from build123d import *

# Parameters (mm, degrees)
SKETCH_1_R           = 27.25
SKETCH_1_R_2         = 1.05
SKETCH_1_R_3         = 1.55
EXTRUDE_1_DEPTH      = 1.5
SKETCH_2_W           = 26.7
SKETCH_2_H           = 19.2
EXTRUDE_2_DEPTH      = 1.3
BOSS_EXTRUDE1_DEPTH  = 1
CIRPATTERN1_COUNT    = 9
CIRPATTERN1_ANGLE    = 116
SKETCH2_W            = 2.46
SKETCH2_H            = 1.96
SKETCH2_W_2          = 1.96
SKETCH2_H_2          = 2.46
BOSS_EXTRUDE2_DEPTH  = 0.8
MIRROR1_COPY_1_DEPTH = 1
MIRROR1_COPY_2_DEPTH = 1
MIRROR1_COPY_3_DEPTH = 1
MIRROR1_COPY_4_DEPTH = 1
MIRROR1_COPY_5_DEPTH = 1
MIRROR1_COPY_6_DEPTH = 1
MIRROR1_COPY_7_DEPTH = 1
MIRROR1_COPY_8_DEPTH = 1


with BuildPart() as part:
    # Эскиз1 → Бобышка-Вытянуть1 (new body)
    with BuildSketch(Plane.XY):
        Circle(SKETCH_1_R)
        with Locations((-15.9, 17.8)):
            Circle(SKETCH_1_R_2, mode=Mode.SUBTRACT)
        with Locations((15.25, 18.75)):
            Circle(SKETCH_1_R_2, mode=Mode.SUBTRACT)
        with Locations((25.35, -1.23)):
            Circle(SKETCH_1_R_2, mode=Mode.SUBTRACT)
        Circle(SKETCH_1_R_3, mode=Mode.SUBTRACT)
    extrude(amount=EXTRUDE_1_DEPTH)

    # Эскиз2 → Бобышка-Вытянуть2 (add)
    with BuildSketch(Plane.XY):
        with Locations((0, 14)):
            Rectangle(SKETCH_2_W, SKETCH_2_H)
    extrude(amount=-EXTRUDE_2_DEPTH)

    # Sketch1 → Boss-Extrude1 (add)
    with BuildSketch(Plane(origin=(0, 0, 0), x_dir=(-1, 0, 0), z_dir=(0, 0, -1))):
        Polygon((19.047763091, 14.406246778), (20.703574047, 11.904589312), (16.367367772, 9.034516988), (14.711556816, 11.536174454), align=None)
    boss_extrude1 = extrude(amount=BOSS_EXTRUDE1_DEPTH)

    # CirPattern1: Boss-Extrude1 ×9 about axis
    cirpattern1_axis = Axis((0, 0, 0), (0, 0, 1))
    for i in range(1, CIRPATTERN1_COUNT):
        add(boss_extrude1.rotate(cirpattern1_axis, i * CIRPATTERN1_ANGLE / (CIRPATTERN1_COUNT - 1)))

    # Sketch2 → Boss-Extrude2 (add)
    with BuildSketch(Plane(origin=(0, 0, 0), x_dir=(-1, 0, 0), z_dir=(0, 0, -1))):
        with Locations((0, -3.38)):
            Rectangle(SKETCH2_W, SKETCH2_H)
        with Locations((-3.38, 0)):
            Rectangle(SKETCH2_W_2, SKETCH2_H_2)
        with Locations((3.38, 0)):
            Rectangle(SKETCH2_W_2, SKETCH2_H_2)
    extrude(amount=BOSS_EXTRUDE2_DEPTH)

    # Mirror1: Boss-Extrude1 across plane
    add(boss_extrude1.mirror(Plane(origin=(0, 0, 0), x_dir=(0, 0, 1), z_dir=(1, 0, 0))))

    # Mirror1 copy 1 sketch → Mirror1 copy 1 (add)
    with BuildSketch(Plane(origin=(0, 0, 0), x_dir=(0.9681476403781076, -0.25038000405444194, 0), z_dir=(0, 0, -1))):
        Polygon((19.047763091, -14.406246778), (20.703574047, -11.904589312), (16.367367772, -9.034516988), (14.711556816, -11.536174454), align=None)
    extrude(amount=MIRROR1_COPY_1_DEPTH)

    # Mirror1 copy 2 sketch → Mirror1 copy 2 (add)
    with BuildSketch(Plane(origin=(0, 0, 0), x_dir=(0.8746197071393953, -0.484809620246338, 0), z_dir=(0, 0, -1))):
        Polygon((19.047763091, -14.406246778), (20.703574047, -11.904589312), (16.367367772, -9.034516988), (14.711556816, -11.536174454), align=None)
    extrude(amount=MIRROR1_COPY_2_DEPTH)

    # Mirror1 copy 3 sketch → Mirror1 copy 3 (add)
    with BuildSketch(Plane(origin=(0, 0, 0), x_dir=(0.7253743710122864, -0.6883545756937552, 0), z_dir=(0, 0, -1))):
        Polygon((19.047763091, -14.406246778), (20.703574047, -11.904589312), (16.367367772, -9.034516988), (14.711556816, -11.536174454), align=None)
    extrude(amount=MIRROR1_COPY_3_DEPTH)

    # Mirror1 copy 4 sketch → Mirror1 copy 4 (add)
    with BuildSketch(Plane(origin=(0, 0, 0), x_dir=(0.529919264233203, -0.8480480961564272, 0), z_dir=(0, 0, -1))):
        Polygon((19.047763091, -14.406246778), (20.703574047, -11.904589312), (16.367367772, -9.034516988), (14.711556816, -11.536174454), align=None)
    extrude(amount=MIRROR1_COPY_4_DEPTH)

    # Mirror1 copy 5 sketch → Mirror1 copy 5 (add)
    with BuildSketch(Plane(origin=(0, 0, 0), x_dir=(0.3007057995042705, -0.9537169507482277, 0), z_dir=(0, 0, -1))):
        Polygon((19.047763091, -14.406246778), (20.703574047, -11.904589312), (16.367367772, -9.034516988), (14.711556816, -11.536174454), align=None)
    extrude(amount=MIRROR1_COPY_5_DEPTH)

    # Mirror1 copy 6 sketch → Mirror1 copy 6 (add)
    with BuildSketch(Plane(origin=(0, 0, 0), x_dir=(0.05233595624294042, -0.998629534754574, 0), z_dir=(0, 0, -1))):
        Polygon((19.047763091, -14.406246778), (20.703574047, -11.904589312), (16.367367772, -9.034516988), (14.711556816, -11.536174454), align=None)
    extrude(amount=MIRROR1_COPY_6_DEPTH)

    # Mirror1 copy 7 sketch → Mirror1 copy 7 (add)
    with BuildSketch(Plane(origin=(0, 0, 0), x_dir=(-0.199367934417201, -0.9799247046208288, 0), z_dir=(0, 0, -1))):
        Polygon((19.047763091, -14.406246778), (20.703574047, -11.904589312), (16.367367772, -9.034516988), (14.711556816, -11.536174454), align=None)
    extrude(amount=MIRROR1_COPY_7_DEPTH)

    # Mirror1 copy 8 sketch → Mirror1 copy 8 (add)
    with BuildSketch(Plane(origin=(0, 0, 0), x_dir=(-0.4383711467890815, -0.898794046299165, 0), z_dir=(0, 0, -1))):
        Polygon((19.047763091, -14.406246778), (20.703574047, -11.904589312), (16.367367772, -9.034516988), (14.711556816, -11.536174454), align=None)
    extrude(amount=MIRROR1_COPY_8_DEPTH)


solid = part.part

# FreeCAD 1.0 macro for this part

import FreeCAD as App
import Part
import Sketcher

V = App.Vector
Q = App.Units.Quantity


def add_polygon(sketch, points):
    """Adds a closed chain of lines whose ends are joined by coincident constraints."""
    first, n = sketch.GeometryCount, len(points)
    for a, b in zip(points, points[1:] + points[:1]):
        sketch.addGeometry(Part.LineSegment(App.Vector(*a, 0), App.Vector(*b, 0)), False)
    for i in range(n):
        sketch.addConstraint(Sketcher.Constraint("Coincident", first + i, 2, first + (i + 1) % n, 1))

doc = App.newDocument("Part")
params = doc.addObject("Spreadsheet::Sheet", "Params")
for row, (alias, value) in enumerate([
    ("sketch1_diameter", "54.5 mm"),
    ("sketch1_diameter2", "3.1 mm"),
    ("sketch1_diameter3", "2.1 mm"),
    ("pad1_length", "1.5 mm"),
    ("sketch2_width", "26.7 mm"),
    ("sketch2_height", "19.2 mm"),
    ("pad2_length", "1.3 mm"),
    ("sketch3_length", "3 mm"),
    ("sketch3_length2", "5.2 mm"),
    ("pad3_length", "1 mm"),
    ("sketch4_width", "2.46 mm"),
    ("sketch4_width2", "1.96 mm"),
    ("pad4_length", "0.8 mm"),
    ("sketch5_length", "3 mm"),
    ("sketch5_length2", "5.2 mm"),
    ("pad5_length", "1 mm"),
    ("sketch6_length", "3 mm"),
    ("sketch6_length2", "5.2 mm"),
    ("pad6_length", "1 mm"),
    ("sketch7_length", "3 mm"),
    ("sketch7_length2", "5.2 mm"),
    ("pad7_length", "1 mm"),
    ("sketch8_length", "3 mm"),
    ("sketch8_length2", "5.2 mm"),
    ("pad8_length", "1 mm"),
    ("sketch9_length", "3 mm"),
    ("sketch9_length2", "5.2 mm"),
    ("pad9_length", "1 mm"),
    ("sketch10_length", "3 mm"),
    ("sketch10_length2", "5.2 mm"),
    ("pad10_length", "1 mm"),
    ("sketch11_length", "3 mm"),
    ("sketch11_length2", "5.2 mm"),
    ("pad11_length", "1 mm"),
    ("sketch12_length", "3 mm"),
    ("sketch12_length2", "5.2 mm"),
    ("pad12_length", "1 mm"),
], start=1):
    params.set(f"A{row}", alias)
    params.set(f"B{row}", "=" + value)
    params.setAlias(f"B{row}", alias)

body = doc.addObject("PartDesign::Body", "Body")

# Sketch on XY plane
sketch1 = doc.addObject("Sketcher::SketchObject", "Sketch")
body.addObject(sketch1)
sketch1.AttachmentSupport = (doc.XY_Plane, [""])
sketch1.MapMode = "FlatFace"
sketch1.addGeometry(Part.Circle(V(0, 0, 0), V(0, 0, 1), 27.25), False)
sketch1.addGeometry(Part.Circle(V(0, 0, 0), V(0, 0, 1), 1.55), False)
sketch1.addGeometry(Part.Circle(V(25.35, -1.23, 0), V(0, 0, 1), 1.05), False)
sketch1.addGeometry(Part.Circle(V(-15.9, 17.8, 0), V(0, 0, 1), 1.05), False)
sketch1.addGeometry(Part.Circle(V(15.25, 18.75, 0), V(0, 0, 1), 1.05), False)
sketch1.addConstraint(Sketcher.Constraint("Coincident", 0, 3, -1, 1))
sketch1.addConstraint(Sketcher.Constraint("Coincident", 1, 3, -1, 1))
sketch1.addConstraint(Sketcher.Constraint("Equal", 2, 3))
sketch1.addConstraint(Sketcher.Constraint("Equal", 3, 4))
sketch1.addConstraint(Sketcher.Constraint("Diameter", 0, Q("54.5 mm")))
sketch1.addConstraint(Sketcher.Constraint("Diameter", 1, Q("3.1 mm")))
sketch1.addConstraint(Sketcher.Constraint("Diameter", 2, Q("2.1 mm")))
sketch1.addConstraint(Sketcher.Constraint("DistanceX", 3, 3, -1, 1, Q("15.9 mm")))
sketch1.addConstraint(Sketcher.Constraint("DistanceY", -1, 1, 3, 3, Q("17.8 mm")))
sketch1.addConstraint(Sketcher.Constraint("DistanceX", 4, 3, 2, 3, Q("10.1 mm")))
sketch1.addConstraint(Sketcher.Constraint("DistanceX", -1, 1, 2, 3, Q("25.35 mm")))
sketch1.addConstraint(Sketcher.Constraint("DistanceY", 2, 3, -1, 1, Q("1.23 mm")))
sketch1.addConstraint(Sketcher.Constraint("DistanceY", -1, 1, 4, 3, Q("18.75 mm")))
sketch1.setExpression("Constraints[4]", "Params.sketch1_diameter")
sketch1.setExpression("Constraints[5]", "Params.sketch1_diameter2")
sketch1.setExpression("Constraints[6]", "Params.sketch1_diameter3")
pad1 = doc.addObject("PartDesign::Pad", "Pad")
body.addObject(pad1)
pad1.Profile = sketch1
pad1.setExpression("Length", "Params.pad1_length")

# Sketch on XY plane
sketch2 = doc.addObject("Sketcher::SketchObject", "Sketch001")
body.addObject(sketch2)
sketch2.AttachmentSupport = (doc.XY_Plane, [""])
sketch2.MapMode = "FlatFace"
add_polygon(sketch2, [(-13.35, 23.6), (-13.35, 4.4), (13.35, 4.4), (13.35, 23.6)])  # lines 0-3
sketch2.addConstraint(Sketcher.Constraint("Vertical", 0))
sketch2.addConstraint(Sketcher.Constraint("Horizontal", 1))
sketch2.addConstraint(Sketcher.Constraint("Vertical", 2))
sketch2.addConstraint(Sketcher.Constraint("Horizontal", 3))
sketch2.addConstraint(Sketcher.Constraint("DistanceX", 1, 1, 1, 2, Q("26.7 mm")))
sketch2.addConstraint(Sketcher.Constraint("DistanceY", 0, 2, 0, 1, Q("19.2 mm")))
sketch2.addConstraint(Sketcher.Constraint("DistanceY", -1, 1, 0, 2, Q("4.4 mm")))
sketch2.addConstraint(Sketcher.Constraint("DistanceX", 0, 2, -1, 1, Q("13.35 mm")))
sketch2.setExpression("Constraints[8]", "Params.sketch2_width")
sketch2.setExpression("Constraints[9]", "Params.sketch2_height")
pad2 = doc.addObject("PartDesign::Pad", "Pad001")
body.addObject(pad2)
pad2.Profile = sketch2
pad2.setExpression("Length", "Params.pad2_length")
pad2.Reversed = True

# Sketch on XY plane
sketch3 = doc.addObject("Sketcher::SketchObject", "Sketch002")
body.addObject(sketch3)
sketch3.AttachmentSupport = (doc.XY_Plane, [""])
sketch3.MapMode = "FlatFace"
add_polygon(sketch3, [(-20.703574, 11.904589), (-19.047763, 14.406247), (-14.711557, 11.536174), (-16.367368, 9.034517)])  # lines 0-3
sketch3.addConstraint(Sketcher.Constraint("Perpendicular", 0, 1))
sketch3.addConstraint(Sketcher.Constraint("Perpendicular", 1, 2))
sketch3.addConstraint(Sketcher.Constraint("Perpendicular", 2, 3))
sketch3.addConstraint(Sketcher.Constraint("Distance", 0, Q("3 mm")))
sketch3.addConstraint(Sketcher.Constraint("Angle", 0, Q("56.5 deg")))
sketch3.addConstraint(Sketcher.Constraint("Distance", 1, Q("5.2 mm")))
sketch3.addConstraint(Sketcher.Constraint("DistanceY", -1, 1, 3, 2, Q("11.904589 mm")))
sketch3.addConstraint(Sketcher.Constraint("DistanceX", 0, 2, -1, 1, Q("19.047763 mm")))
sketch3.setExpression("Constraints[7]", "Params.sketch3_length")
sketch3.setExpression("Constraints[9]", "Params.sketch3_length2")
pad3 = doc.addObject("PartDesign::Pad", "Pad002")
body.addObject(pad3)
pad3.Profile = sketch3
pad3.setExpression("Length", "Params.pad3_length")
pad3.Reversed = True
doc.recompute()

polarpattern = doc.addObject("PartDesign::PolarPattern", "PolarPattern")
body.addObject(polarpattern)
polarpattern.Originals = [pad3]
polarpattern.Axis = (doc.Z_Axis, [""])
polarpattern.Angle = 116
polarpattern.Occurrences = 9
body.Tip = polarpattern

# Sketch on XY plane
sketch4 = doc.addObject("Sketcher::SketchObject", "Sketch003")
body.addObject(sketch4)
sketch4.AttachmentSupport = (doc.XY_Plane, [""])
sketch4.MapMode = "FlatFace"
add_polygon(sketch4, [(1.23, -2.4), (1.23, -4.36), (-1.23, -4.36), (-1.23, -2.4)])  # lines 0-3
add_polygon(sketch4, [(4.36, 1.23), (4.36, -1.23), (2.4, -1.23), (2.4, 1.23)])  # lines 4-7
add_polygon(sketch4, [(-2.4, 1.23), (-2.4, -1.23), (-4.36, -1.23), (-4.36, 1.23)])  # lines 8-11
sketch4.addConstraint(Sketcher.Constraint("Vertical", 0))
sketch4.addConstraint(Sketcher.Constraint("Horizontal", 1))
sketch4.addConstraint(Sketcher.Constraint("Vertical", 2))
sketch4.addConstraint(Sketcher.Constraint("Horizontal", 3))
sketch4.addConstraint(Sketcher.Constraint("Vertical", 4))
sketch4.addConstraint(Sketcher.Constraint("Horizontal", 5))
sketch4.addConstraint(Sketcher.Constraint("Vertical", 6))
sketch4.addConstraint(Sketcher.Constraint("Horizontal", 7))
sketch4.addConstraint(Sketcher.Constraint("Vertical", 8))
sketch4.addConstraint(Sketcher.Constraint("Horizontal", 9))
sketch4.addConstraint(Sketcher.Constraint("Vertical", 10))
sketch4.addConstraint(Sketcher.Constraint("Horizontal", 11))
sketch4.addConstraint(Sketcher.Constraint("Symmetric", 6, 2, 8, 2, -1, 1))
sketch4.addConstraint(Sketcher.Constraint("Symmetric", 4, 2, 10, 2, -1, 1))
sketch4.addConstraint(Sketcher.Constraint("Horizontal", 5, 2, 8, 2))
sketch4.addConstraint(Sketcher.Constraint("Equal", 11, 0))
sketch4.addConstraint(Sketcher.Constraint("Equal", 3, 4))
sketch4.addConstraint(Sketcher.Constraint("DistanceX", 1, 2, 1, 1, Q("2.46 mm")))
sketch4.addConstraint(Sketcher.Constraint("DistanceX", 5, 2, 5, 1, Q("1.96 mm")))
sketch4.addConstraint(Sketcher.Constraint("DistanceY", 2, 2, -1, 1, Q("2.4 mm")))
sketch4.addConstraint(Sketcher.Constraint("DistanceX", -1, 1, 5, 2, Q("2.4 mm")))
sketch4.addConstraint(Sketcher.Constraint("DistanceX", -1, 1, 0, 2, Q("1.23 mm")))
sketch4.setExpression("Constraints[29]", "Params.sketch4_width")
sketch4.setExpression("Constraints[30]", "Params.sketch4_width2")
pad4 = doc.addObject("PartDesign::Pad", "Pad003")
body.addObject(pad4)
pad4.Profile = sketch4
pad4.setExpression("Length", "Params.pad4_length")
pad4.Reversed = True
doc.recompute()

mirrored = doc.addObject("PartDesign::Mirrored", "Mirrored")
body.addObject(mirrored)
mirrored.Originals = [pad3]
mirrored.MirrorPlane = (doc.YZ_Plane, [""])
body.Tip = mirrored

# Sketch on XY plane
sketch5 = doc.addObject("Sketcher::SketchObject", "Sketch004")
body.addObject(sketch5)
sketch5.AttachmentSupport = (doc.XY_Plane, [""])
sketch5.MapMode = "FlatFace"
add_polygon(sketch5, [(22.048083, 9.178195), (23.024787, 6.341639), (18.108091, 4.648685), (17.131386, 7.48524)])  # lines 0-3
sketch5.addConstraint(Sketcher.Constraint("Perpendicular", 0, 1))
sketch5.addConstraint(Sketcher.Constraint("Perpendicular", 1, 2))
sketch5.addConstraint(Sketcher.Constraint("Perpendicular", 2, 3))
sketch5.addConstraint(Sketcher.Constraint("Angle", 0, Q("-71 deg")))
sketch5.addConstraint(Sketcher.Constraint("Distance", 0, Q("3 mm")))
sketch5.addConstraint(Sketcher.Constraint("Distance", 1, Q("5.2 mm")))
sketch5.addConstraint(Sketcher.Constraint("DistanceY", -1, 1, 0, 2, Q("6.341639 mm")))
sketch5.addConstraint(Sketcher.Constraint("DistanceX", -1, 1, 1, 2, Q("18.108091 mm")))
sketch5.setExpression("Constraints[8]", "Params.sketch5_length")
sketch5.setExpression("Constraints[9]", "Params.sketch5_length2")
pad5 = doc.addObject("PartDesign::Pad", "Pad004")
body.addObject(pad5)
pad5.Profile = sketch5
pad5.setExpression("Length", "Params.pad5_length")
pad5.Reversed = True

# Sketch on XY plane
sketch6 = doc.addObject("Sketcher::SketchObject", "Sketch005")
body.addObject(sketch6)
sketch6.AttachmentSupport = (doc.XY_Plane, [""])
sketch6.MapMode = "FlatFace"
add_polygon(sketch6, [(23.643836, 3.365449), (23.879213, 0.374697), (18.695243, -0.033291), (18.459866, 2.957461)])  # lines 0-3
sketch6.addConstraint(Sketcher.Constraint("Perpendicular", 0, 1))
sketch6.addConstraint(Sketcher.Constraint("Perpendicular", 1, 2))
sketch6.addConstraint(Sketcher.Constraint("Perpendicular", 2, 3))
sketch6.addConstraint(Sketcher.Constraint("Distance", 0, Q("3 mm")))
sketch6.addConstraint(Sketcher.Constraint("Angle", 0, Q("-85.5 deg")))
sketch6.addConstraint(Sketcher.Constraint("Distance", 1, Q("5.2 mm")))
sketch6.addConstraint(Sketcher.Constraint("DistanceY", 1, 2, -1, 1, Q("0.033291 mm")))
sketch6.addConstraint(Sketcher.Constraint("DistanceX", -1, 1, 0, 2, Q("23.879213 mm")))
sketch6.setExpression("Constraints[7]", "Params.sketch6_length")
sketch6.setExpression("Constraints[9]", "Params.sketch6_length2")
pad6 = doc.addObject("PartDesign::Pad", "Pad005")
body.addObject(pad6)
pad6.Profile = sketch6
pad6.setExpression("Length", "Params.pad6_length")
pad6.Reversed = True

# Sketch on XY plane
sketch7 = doc.addObject("Sketcher::SketchObject", "Sketch006")
body.addObject(sketch7)
sketch7.AttachmentSupport = (doc.XY_Plane, [""])
sketch7.MapMode = "FlatFace"
add_polygon(sketch7, [(23.733365, -2.661693), (23.212421, -5.616116), (18.09142, -4.713145), (18.612365, -1.758722)])  # lines 0-3
sketch7.addConstraint(Sketcher.Constraint("Perpendicular", 0, 1))
sketch7.addConstraint(Sketcher.Constraint("Perpendicular", 1, 2))
sketch7.addConstraint(Sketcher.Constraint("Perpendicular", 2, 3))
sketch7.addConstraint(Sketcher.Constraint("Angle", 0, Q("-100 deg")))
sketch7.addConstraint(Sketcher.Constraint("Distance", 0, Q("3 mm")))
sketch7.addConstraint(Sketcher.Constraint("Distance", 1, Q("5.2 mm")))
sketch7.addConstraint(Sketcher.Constraint("DistanceX", -1, 1, 0, 2, Q("23.212421 mm")))
sketch7.addConstraint(Sketcher.Constraint("DistanceY", 0, 2, -1, 1, Q("5.616116 mm")))
sketch7.setExpression("Constraints[8]", "Params.sketch7_length")
sketch7.setExpression("Constraints[9]", "Params.sketch7_length2")
pad7 = doc.addObject("PartDesign::Pad", "Pad006")
body.addObject(pad7)
pad7.Profile = sketch7
pad7.setExpression("Length", "Params.pad7_length")
pad7.Reversed = True

# Sketch on XY plane
sketch8 = doc.addObject("Sketcher::SketchObject", "Sketch007")
body.addObject(sketch8)
sketch8.AttachmentSupport = (doc.XY_Plane, [""])
sketch8.MapMode = "FlatFace"
add_polygon(sketch8, [(22.310967, -8.519272), (21.066887, -11.249155), (16.335088, -9.09275), (17.579168, -6.362867)])  # lines 0-3
sketch8.addConstraint(Sketcher.Constraint("Perpendicular", 0, 1))
sketch8.addConstraint(Sketcher.Constraint("Perpendicular", 1, 2))
sketch8.addConstraint(Sketcher.Constraint("Perpendicular", 2, 3))
sketch8.addConstraint(Sketcher.Constraint("Distance", 0, Q("3 mm")))
sketch8.addConstraint(Sketcher.Constraint("Angle", 0, Q("-114.5 deg")))
sketch8.addConstraint(Sketcher.Constraint("Distance", 1, Q("5.2 mm")))
sketch8.addConstraint(Sketcher.Constraint("DistanceX", -1, 1, 1, 2, Q("16.335088 mm")))
sketch8.addConstraint(Sketcher.Constraint("DistanceY", 1, 2, -1, 1, Q("9.09275 mm")))
sketch8.setExpression("Constraints[7]", "Params.sketch8_length")
sketch8.setExpression("Constraints[9]", "Params.sketch8_length2")
pad8 = doc.addObject("PartDesign::Pad", "Pad007")
body.addObject(pad8)
pad8.Profile = sketch8
pad8.setExpression("Length", "Params.pad8_length")
pad8.Reversed = True

# Sketch on XY plane
sketch9 = doc.addObject("Sketcher::SketchObject", "Sketch008")
body.addObject(sketch9)
sketch9.AttachmentSupport = (doc.XY_Plane, [""])
sketch9.MapMode = "FlatFace"
add_polygon(sketch9, [(19.467255, -13.834133), (17.579293, -16.16557), (13.538134, -12.893104), (15.426096, -10.561667)])  # lines 0-3
sketch9.addConstraint(Sketcher.Constraint("Perpendicular", 0, 1))
sketch9.addConstraint(Sketcher.Constraint("Perpendicular", 1, 2))
sketch9.addConstraint(Sketcher.Constraint("Perpendicular", 2, 3))
sketch9.addConstraint(Sketcher.Constraint("Angle", 0, Q("-129 deg")))
sketch9.addConstraint(Sketcher.Constraint("Distance", 0, Q("3 mm")))
sketch9.addConstraint(Sketcher.Constraint("Distance", 1, Q("5.2 mm")))
sketch9.addConstraint(Sketcher.Constraint("DistanceY", 0, 2, -1, 1, Q("16.16557 mm")))
sketch9.addConstraint(Sketcher.Constraint("DistanceX", -1, 1, 0, 2, Q("17.579293 mm")))
sketch9.setExpression("Constraints[8]", "Params.sketch9_length")
sketch9.setExpression("Constraints[9]", "Params.sketch9_length2")
pad9 = doc.addObject("PartDesign::Pad", "Pad008")
body.addObject(pad9)
pad9.Profile = sketch9
pad9.setExpression("Length", "Params.pad9_length")
pad9.Reversed = True

# Sketch on XY plane
sketch10 = doc.addObject("Sketcher::SketchObject", "Sketch009")
body.addObject(sketch10)
sketch10.AttachmentSupport = (doc.XY_Plane, [""])
sketch10.MapMode = "FlatFace"
add_polygon(sketch10, [(15.383386, -18.267694), (12.971816, -20.052162), (9.878737, -15.872107), (12.290308, -14.087638)])  # lines 0-3
sketch10.addConstraint(Sketcher.Constraint("Perpendicular", 0, 1))
sketch10.addConstraint(Sketcher.Constraint("Perpendicular", 1, 2))
sketch10.addConstraint(Sketcher.Constraint("Perpendicular", 2, 3))
sketch10.addConstraint(Sketcher.Constraint("Distance", 0, Q("3 mm")))
sketch10.addConstraint(Sketcher.Constraint("Angle", 0, Q("-143.5 deg")))
sketch10.addConstraint(Sketcher.Constraint("Distance", 1, Q("5.2 mm")))
sketch10.addConstraint(Sketcher.Constraint("DistanceY", 2, 2, -1, 1, Q("14.087638 mm")))
sketch10.addConstraint(Sketcher.Constraint("DistanceX", -1, 1, 0, 2, Q("12.971816 mm")))
sketch10.setExpression("Constraints[7]", "Params.sketch10_length")
sketch10.setExpression("Constraints[9]", "Params.sketch10_length2")
pad10 = doc.addObject("PartDesign::Pad", "Pad009")
body.addObject(pad10)
pad10.Profile = sketch10
pad10.setExpression("Length", "Params.pad10_length")
pad10.Reversed = True

# Sketch on XY plane
sketch11 = doc.addObject("Sketcher::SketchObject", "Sketch010")
body.addObject(sketch11)
sketch11.AttachmentSupport = (doc.XY_Plane, [""])
sketch11.MapMode = "FlatFace"
add_polygon(sketch11, [(10.319524, -21.537517), (7.537972, -22.661337), (5.590018, -17.839981), (8.37157, -16.716161)])  # lines 0-3
sketch11.addConstraint(Sketcher.Constraint("Perpendicular", 0, 1))
sketch11.addConstraint(Sketcher.Constraint("Perpendicular", 1, 2))
sketch11.addConstraint(Sketcher.Constraint("Perpendicular", 2, 3))
sketch11.addConstraint(Sketcher.Constraint("Angle", 0, Q("-158 deg")))
sketch11.addConstraint(Sketcher.Constraint("Distance", 0, Q("3 mm")))
sketch11.addConstraint(Sketcher.Constraint("Distance", 1, Q("5.2 mm")))
sketch11.addConstraint(Sketcher.Constraint("DistanceX", -1, 1, 1, 2, Q("5.590018 mm")))
sketch11.addConstraint(Sketcher.Constraint("DistanceY", 1, 2, -1, 1, Q("17.839981 mm")))
sketch11.setExpression("Constraints[8]", "Params.sketch11_length")
sketch11.setExpression("Constraints[9]", "Params.sketch11_length2")
pad11 = doc.addObject("PartDesign::Pad", "Pad010")
body.addObject(pad11)
pad11.Profile = sketch11
pad11.setExpression("Length", "Params.pad11_length")
pad11.Reversed = True

# Sketch on XY plane
sketch12 = doc.addObject("Sketcher::SketchObject", "Sketch011")
body.addObject(sketch12)
sketch12.AttachmentSupport = (doc.XY_Plane, [""])
sketch12.MapMode = "FlatFace"
add_polygon(sketch12, [(4.598259, -23.435299), (1.623924, -23.826878), (0.945188, -18.671364), (3.919523, -18.279786)])  # lines 0-3
sketch12.addConstraint(Sketcher.Constraint("Perpendicular", 0, 1))
sketch12.addConstraint(Sketcher.Constraint("Perpendicular", 1, 2))
sketch12.addConstraint(Sketcher.Constraint("Perpendicular", 2, 3))
sketch12.addConstraint(Sketcher.Constraint("Distance", 0, Q("3 mm")))
sketch12.addConstraint(Sketcher.Constraint("Angle", 0, Q("-172.5 deg")))
sketch12.addConstraint(Sketcher.Constraint("Distance", 1, Q("5.2 mm")))
sketch12.addConstraint(Sketcher.Constraint("DistanceY", 3, 2, -1, 1, Q("23.435299 mm")))
sketch12.addConstraint(Sketcher.Constraint("DistanceX", -1, 1, 1, 2, Q("0.945188 mm")))
sketch12.setExpression("Constraints[7]", "Params.sketch12_length")
sketch12.setExpression("Constraints[9]", "Params.sketch12_length2")
pad12 = doc.addObject("PartDesign::Pad", "Pad011")
body.addObject(pad12)
pad12.Profile = sketch12
pad12.setExpression("Length", "Params.pad12_length")
pad12.Reversed = True

doc.recompute()
